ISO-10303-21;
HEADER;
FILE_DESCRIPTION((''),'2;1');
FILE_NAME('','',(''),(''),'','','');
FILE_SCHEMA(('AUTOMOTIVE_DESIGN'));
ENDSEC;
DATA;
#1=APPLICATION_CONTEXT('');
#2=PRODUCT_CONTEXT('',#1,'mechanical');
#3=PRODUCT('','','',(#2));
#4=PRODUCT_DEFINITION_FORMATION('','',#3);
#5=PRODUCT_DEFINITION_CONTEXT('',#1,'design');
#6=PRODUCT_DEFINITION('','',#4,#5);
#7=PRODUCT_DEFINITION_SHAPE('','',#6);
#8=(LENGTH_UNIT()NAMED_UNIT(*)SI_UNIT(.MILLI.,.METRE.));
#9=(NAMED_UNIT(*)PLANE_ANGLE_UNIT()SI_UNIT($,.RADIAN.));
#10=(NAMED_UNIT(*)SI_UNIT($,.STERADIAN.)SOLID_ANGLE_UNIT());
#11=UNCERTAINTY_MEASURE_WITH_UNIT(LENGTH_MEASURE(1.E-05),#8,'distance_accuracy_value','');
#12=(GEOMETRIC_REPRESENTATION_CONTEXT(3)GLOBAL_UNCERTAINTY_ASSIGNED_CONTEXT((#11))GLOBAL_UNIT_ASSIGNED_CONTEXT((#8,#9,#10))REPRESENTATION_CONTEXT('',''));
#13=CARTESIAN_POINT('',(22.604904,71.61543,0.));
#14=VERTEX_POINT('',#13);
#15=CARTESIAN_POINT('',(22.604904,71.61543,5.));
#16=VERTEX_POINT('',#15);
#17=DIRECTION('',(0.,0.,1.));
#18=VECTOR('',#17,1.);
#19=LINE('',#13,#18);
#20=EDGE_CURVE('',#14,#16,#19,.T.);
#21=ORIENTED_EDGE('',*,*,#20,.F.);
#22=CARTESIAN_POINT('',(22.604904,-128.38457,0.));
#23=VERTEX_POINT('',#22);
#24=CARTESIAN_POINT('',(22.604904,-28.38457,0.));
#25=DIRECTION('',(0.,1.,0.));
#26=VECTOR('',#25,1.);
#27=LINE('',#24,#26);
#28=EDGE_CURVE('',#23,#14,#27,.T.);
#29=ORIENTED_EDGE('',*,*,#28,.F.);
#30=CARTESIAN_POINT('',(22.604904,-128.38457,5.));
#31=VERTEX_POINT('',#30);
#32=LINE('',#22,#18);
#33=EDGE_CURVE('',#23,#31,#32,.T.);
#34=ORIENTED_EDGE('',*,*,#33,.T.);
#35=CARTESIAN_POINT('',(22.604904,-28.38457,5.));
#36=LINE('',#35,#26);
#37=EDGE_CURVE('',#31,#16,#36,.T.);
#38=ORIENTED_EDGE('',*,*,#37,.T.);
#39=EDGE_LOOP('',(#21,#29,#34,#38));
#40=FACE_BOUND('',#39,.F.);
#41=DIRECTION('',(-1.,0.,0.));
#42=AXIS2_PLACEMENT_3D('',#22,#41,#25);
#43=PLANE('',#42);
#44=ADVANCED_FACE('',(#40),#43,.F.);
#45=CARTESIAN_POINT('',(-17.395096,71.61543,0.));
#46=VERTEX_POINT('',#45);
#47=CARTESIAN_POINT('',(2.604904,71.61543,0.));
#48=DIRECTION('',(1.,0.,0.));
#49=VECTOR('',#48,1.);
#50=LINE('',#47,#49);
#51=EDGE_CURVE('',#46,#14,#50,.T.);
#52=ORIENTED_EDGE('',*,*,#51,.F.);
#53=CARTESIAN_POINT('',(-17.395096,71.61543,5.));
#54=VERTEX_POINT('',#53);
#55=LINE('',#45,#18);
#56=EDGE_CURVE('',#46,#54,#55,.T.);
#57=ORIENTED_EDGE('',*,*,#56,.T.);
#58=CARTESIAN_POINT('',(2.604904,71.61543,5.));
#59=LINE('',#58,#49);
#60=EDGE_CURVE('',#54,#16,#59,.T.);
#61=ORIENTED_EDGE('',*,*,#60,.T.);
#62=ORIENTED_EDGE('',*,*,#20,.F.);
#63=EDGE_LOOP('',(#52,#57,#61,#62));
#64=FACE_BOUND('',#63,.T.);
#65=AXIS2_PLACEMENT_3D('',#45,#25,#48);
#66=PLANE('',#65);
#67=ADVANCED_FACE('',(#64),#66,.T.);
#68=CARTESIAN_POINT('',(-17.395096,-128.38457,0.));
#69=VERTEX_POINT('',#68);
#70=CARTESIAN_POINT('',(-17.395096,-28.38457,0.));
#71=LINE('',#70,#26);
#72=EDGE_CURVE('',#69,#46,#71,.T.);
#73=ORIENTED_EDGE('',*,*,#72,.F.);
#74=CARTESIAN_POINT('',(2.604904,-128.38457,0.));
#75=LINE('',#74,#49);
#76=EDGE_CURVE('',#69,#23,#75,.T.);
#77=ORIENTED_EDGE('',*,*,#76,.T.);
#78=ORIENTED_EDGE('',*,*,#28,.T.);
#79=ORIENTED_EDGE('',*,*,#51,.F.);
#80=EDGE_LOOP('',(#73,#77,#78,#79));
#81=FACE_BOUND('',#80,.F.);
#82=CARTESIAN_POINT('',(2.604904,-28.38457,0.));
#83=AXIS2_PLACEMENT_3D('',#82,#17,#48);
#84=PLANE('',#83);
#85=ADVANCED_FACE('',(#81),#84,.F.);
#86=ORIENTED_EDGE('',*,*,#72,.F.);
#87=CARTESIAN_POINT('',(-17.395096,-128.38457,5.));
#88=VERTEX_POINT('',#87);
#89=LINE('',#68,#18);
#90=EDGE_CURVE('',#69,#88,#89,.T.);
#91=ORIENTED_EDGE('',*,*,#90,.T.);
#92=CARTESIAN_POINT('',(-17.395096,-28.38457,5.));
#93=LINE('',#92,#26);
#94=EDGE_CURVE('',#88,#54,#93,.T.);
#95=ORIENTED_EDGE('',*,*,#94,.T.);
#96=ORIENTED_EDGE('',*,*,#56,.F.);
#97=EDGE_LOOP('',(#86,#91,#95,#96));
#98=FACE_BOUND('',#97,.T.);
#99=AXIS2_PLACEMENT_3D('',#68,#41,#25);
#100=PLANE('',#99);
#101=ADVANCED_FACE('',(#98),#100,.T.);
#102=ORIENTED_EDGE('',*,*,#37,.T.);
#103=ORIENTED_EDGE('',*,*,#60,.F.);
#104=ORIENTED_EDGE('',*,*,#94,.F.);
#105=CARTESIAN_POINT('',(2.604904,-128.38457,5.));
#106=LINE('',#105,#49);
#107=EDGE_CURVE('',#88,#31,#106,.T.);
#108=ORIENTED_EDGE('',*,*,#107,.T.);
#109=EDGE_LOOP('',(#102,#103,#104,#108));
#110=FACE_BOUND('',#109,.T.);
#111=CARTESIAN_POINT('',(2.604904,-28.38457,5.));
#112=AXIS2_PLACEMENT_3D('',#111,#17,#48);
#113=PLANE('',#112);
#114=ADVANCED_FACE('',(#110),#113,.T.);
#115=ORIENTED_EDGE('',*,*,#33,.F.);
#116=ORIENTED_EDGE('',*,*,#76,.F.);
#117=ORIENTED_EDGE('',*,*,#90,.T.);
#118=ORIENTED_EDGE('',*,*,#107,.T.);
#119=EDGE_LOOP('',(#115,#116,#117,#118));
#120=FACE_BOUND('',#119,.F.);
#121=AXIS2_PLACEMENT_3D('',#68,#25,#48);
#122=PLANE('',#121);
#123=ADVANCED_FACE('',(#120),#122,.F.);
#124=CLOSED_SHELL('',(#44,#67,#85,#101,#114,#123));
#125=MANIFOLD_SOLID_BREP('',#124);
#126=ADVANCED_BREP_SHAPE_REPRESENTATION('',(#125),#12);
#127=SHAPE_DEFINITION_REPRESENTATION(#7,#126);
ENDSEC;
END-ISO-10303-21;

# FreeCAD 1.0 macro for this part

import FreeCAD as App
import Part
import Sketcher
from FreeCAD import Vector

doc = App.newDocument("Part")
body = doc.addObject("PartDesign::Body", "Body")

# Sketch on XY plane
sketch1 = body.newObject("Sketcher::SketchObject", "Sketch")
sketch1.AttachmentSupport = (doc.getObject("XY_Plane"), [""])
sketch1.MapMode = "FlatFace"
sketch1.addGeometry([
    Part.LineSegment(Vector(-17, 72, 0), Vector(-17, -128, 0)),
    Part.LineSegment(Vector(-17, -128, 0), Vector(23, -128, 0)),
    Part.LineSegment(Vector(23, -128, 0), Vector(23, 72, 0)),
    Part.LineSegment(Vector(23, 72, 0), Vector(-17, 72, 0)),
], False)
sketch1.addConstraint([
    Sketcher.Constraint("Coincident", 0, 2, 1, 1),
    Sketcher.Constraint("Coincident", 1, 2, 2, 1),
    Sketcher.Constraint("Coincident", 2, 2, 3, 1),
    Sketcher.Constraint("Coincident", 3, 2, 0, 1),
    Sketcher.Constraint("Vertical", 0),
    Sketcher.Constraint("Horizontal", 1),
    Sketcher.Constraint("Vertical", 2),
    Sketcher.Constraint("Horizontal", 3),
    Sketcher.Constraint("DistanceX", 1, 1, 1, 2, 40.0),
    Sketcher.Constraint("DistanceY", 0, 2, 0, 1, 200.0),
    Sketcher.Constraint("DistanceY", 0, 2, -1, 1, 128.38457),
    Sketcher.Constraint("DistanceX", 0, 2, -1, 1, 17.395096),
])
pad1 = body.newObject("PartDesign::Pad", "Pad")
pad1.Profile = sketch1
pad1.Length = 5

doc.recompute()
